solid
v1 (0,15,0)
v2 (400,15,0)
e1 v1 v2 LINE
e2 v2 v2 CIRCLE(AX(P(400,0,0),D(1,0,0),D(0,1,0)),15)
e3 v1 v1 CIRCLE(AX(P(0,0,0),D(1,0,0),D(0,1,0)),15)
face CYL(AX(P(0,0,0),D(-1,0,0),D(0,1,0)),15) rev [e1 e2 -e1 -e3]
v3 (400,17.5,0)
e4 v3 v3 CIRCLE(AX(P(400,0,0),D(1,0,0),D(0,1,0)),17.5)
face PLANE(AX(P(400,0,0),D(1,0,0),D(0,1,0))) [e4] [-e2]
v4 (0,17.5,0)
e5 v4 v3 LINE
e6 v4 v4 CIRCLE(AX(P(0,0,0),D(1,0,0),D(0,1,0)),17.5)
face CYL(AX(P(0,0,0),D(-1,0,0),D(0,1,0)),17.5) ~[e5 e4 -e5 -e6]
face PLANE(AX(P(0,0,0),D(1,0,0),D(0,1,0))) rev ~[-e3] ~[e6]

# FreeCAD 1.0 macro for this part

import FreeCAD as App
import Part
import Sketcher
Q = App.Units.Quantity

doc = App.newDocument("Part")
body = doc.addObject("PartDesign::Body", "Body")

# Sketch on YZ plane
sketch1 = body.newObject("Sketcher::SketchObject", "Sketch")
sketch1.AttachmentSupport = (doc.getObject("YZ_Plane"), [""])
sketch1.MapMode = "FlatFace"
sketch1.addGeometry([
    Part.Circle(App.Vector(0, 0, 0), App.Vector(0, 0, 1), 18),
    Part.Circle(App.Vector(0, 0, 0), App.Vector(0, 0, 1), 15),
], False)
sketch1.addConstraint([
    Sketcher.Constraint("Coincident", 0, 3, -1, 1),
    Sketcher.Constraint("Coincident", 1, 3, -1, 1),
    Sketcher.Constraint("Diameter", 0, Q("35 mm")),
    Sketcher.Constraint("Diameter", 1, Q("30 mm")),
])
pad1 = body.newObject("PartDesign::Pad", "Pad")
pad1.Profile = sketch1
pad1.Length = 400

doc.recompute()
